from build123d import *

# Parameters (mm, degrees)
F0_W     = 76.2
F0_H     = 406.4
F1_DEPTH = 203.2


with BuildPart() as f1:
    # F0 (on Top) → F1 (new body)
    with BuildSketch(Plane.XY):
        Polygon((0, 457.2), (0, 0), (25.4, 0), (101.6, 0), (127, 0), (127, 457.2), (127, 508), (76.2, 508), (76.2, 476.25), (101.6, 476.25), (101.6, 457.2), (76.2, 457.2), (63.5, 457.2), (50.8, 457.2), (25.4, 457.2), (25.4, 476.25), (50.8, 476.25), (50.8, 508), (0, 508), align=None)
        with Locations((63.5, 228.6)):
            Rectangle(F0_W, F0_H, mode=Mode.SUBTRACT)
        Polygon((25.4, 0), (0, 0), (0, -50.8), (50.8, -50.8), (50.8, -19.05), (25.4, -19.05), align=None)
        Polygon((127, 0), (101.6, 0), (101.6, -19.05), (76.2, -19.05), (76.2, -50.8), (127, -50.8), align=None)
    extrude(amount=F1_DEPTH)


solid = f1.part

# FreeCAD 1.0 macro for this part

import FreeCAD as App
import Part
import Sketcher
Q = App.Units.Quantity


def add_polygon(sketch, points):
    """Adds a closed chain of lines whose ends are joined by coincident constraints."""
    first, n = sketch.GeometryCount, len(points)
    for a, b in zip(points, points[1:] + points[:1]):
        sketch.addGeometry(Part.LineSegment(App.Vector(*a, 0), App.Vector(*b, 0)), False)
    for i in range(n):
        sketch.addConstraint(Sketcher.Constraint("Coincident", first + i, 2, first + (i + 1) % n, 1))

doc = App.newDocument("Part")
body = doc.addObject("PartDesign::Body", "Body")

# Sketch on XY plane
sketch1 = body.newObject("Sketcher::SketchObject", "Sketch")
sketch1.AttachmentSupport = (doc.getObject("XY_Plane"), [""])
sketch1.MapMode = "FlatFace"
add_polygon(sketch1, [(25.4, 0), (101.6, 0), (101.6, -19.05), (76.2, -19.05), (76.2, -50.8), (127, -50.8), (127, 508), (76.2, 508), (76.2, 476.25), (101.6, 476.25), (101.6, 457.2), (25.4, 457.2), (25.4, 476.25), (50.8, 476.25), (50.8, 508), (0, 508), (0, -50.8), (50.8, -50.8), (50.8, -19.05), (25.4, -19.05)])  # lines 0-19
add_polygon(sketch1, [(101.6, 25.4), (25.4, 25.4), (25.4, 431.8), (101.6, 431.8)])  # lines 20-23
sketch1.addConstraint(Sketcher.Constraint("Horizontal", 0))
sketch1.addConstraint(Sketcher.Constraint("Vertical", 1))
sketch1.addConstraint(Sketcher.Constraint("Horizontal", 2))
sketch1.addConstraint(Sketcher.Constraint("Vertical", 3))
sketch1.addConstraint(Sketcher.Constraint("Horizontal", 4))
sketch1.addConstraint(Sketcher.Constraint("Vertical", 5))
sketch1.addConstraint(Sketcher.Constraint("Horizontal", 6))
sketch1.addConstraint(Sketcher.Constraint("Vertical", 7))
sketch1.addConstraint(Sketcher.Constraint("Horizontal", 8))
sketch1.addConstraint(Sketcher.Constraint("Vertical", 9))
sketch1.addConstraint(Sketcher.Constraint("Horizontal", 10))
sketch1.addConstraint(Sketcher.Constraint("Vertical", 11))
sketch1.addConstraint(Sketcher.Constraint("Horizontal", 12))
sketch1.addConstraint(Sketcher.Constraint("Vertical", 13))
sketch1.addConstraint(Sketcher.Constraint("Horizontal", 14))
sketch1.addConstraint(Sketcher.Constraint("Vertical", 15))
sketch1.addConstraint(Sketcher.Constraint("Horizontal", 16))
sketch1.addConstraint(Sketcher.Constraint("Vertical", 17))
sketch1.addConstraint(Sketcher.Constraint("Horizontal", 18))
sketch1.addConstraint(Sketcher.Constraint("Vertical", 19))
sketch1.addConstraint(Sketcher.Constraint("Horizontal", 20))
sketch1.addConstraint(Sketcher.Constraint("Vertical", 21))
sketch1.addConstraint(Sketcher.Constraint("Horizontal", 22))
sketch1.addConstraint(Sketcher.Constraint("Vertical", 23))
sketch1.addConstraint(Sketcher.Constraint("PointOnObject", 0, 2, -1))
sketch1.addConstraint(Sketcher.Constraint("PointOnObject", 14, 2, -2))
sketch1.addConstraint(Sketcher.Constraint("Horizontal", 8, 2, 11, 2))
sketch1.addConstraint(Sketcher.Constraint("Horizontal", 6, 2, 13, 2))
sketch1.addConstraint(Sketcher.Constraint("Horizontal", 4, 2, 15, 2))
sketch1.addConstraint(Sketcher.Constraint("Horizontal", 2, 2, 17, 2))
sketch1.addConstraint(Sketcher.Constraint("Vertical", 3, 2, 6, 2))
sketch1.addConstraint(Sketcher.Constraint("Vertical", 1, 2, 8, 2))
sketch1.addConstraint(Sketcher.Constraint("Vertical", 13, 2, 16, 2))
sketch1.addConstraint(Sketcher.Constraint("Vertical", 11, 2, 18, 2))
sketch1.addConstraint(Sketcher.Constraint("Vertical", 19, 2, 20, 2))
sketch1.addConstraint(Sketcher.Constraint("Vertical", 9, 2, 22, 2))
sketch1.addConstraint(Sketcher.Constraint("Equal", 8, 12))
sketch1.addConstraint(Sketcher.Constraint("Equal", 6, 14))
sketch1.addConstraint(Sketcher.Constraint("Equal", 3, 7))
sketch1.addConstraint(Sketcher.Constraint("Equal", 1, 9))
sketch1.addConstraint(Sketcher.Constraint("DistanceX", 0, 1, 0, 2, Q("3 in")))
sketch1.addConstraint(Sketcher.Constraint("DistanceX", 2, 2, 2, 1, Q("1 in")))
sketch1.addConstraint(Sketcher.Constraint("DistanceX", 4, 1, 4, 2, Q("2 in")))
sketch1.addConstraint(Sketcher.Constraint("DistanceY", 5, 1, 5, 2, Q("22 in")))
sketch1.addConstraint(Sketcher.Constraint("DistanceY", 21, 1, 21, 2, Q("16 in")))
sketch1.addConstraint(Sketcher.Constraint("DistanceY", 3, 2, -1, 1, Q("2 in")))
sketch1.addConstraint(Sketcher.Constraint("DistanceY", -1, 1, 20, 2, Q("1 in")))
sketch1.addConstraint(Sketcher.Constraint("DistanceY", 1, 2, 1, 1, Q("0.75 in")))
pad1 = body.newObject("PartDesign::Pad", "Pad")
pad1.Profile = sketch1
pad1.Length = Q("8 in")

doc.recompute()
